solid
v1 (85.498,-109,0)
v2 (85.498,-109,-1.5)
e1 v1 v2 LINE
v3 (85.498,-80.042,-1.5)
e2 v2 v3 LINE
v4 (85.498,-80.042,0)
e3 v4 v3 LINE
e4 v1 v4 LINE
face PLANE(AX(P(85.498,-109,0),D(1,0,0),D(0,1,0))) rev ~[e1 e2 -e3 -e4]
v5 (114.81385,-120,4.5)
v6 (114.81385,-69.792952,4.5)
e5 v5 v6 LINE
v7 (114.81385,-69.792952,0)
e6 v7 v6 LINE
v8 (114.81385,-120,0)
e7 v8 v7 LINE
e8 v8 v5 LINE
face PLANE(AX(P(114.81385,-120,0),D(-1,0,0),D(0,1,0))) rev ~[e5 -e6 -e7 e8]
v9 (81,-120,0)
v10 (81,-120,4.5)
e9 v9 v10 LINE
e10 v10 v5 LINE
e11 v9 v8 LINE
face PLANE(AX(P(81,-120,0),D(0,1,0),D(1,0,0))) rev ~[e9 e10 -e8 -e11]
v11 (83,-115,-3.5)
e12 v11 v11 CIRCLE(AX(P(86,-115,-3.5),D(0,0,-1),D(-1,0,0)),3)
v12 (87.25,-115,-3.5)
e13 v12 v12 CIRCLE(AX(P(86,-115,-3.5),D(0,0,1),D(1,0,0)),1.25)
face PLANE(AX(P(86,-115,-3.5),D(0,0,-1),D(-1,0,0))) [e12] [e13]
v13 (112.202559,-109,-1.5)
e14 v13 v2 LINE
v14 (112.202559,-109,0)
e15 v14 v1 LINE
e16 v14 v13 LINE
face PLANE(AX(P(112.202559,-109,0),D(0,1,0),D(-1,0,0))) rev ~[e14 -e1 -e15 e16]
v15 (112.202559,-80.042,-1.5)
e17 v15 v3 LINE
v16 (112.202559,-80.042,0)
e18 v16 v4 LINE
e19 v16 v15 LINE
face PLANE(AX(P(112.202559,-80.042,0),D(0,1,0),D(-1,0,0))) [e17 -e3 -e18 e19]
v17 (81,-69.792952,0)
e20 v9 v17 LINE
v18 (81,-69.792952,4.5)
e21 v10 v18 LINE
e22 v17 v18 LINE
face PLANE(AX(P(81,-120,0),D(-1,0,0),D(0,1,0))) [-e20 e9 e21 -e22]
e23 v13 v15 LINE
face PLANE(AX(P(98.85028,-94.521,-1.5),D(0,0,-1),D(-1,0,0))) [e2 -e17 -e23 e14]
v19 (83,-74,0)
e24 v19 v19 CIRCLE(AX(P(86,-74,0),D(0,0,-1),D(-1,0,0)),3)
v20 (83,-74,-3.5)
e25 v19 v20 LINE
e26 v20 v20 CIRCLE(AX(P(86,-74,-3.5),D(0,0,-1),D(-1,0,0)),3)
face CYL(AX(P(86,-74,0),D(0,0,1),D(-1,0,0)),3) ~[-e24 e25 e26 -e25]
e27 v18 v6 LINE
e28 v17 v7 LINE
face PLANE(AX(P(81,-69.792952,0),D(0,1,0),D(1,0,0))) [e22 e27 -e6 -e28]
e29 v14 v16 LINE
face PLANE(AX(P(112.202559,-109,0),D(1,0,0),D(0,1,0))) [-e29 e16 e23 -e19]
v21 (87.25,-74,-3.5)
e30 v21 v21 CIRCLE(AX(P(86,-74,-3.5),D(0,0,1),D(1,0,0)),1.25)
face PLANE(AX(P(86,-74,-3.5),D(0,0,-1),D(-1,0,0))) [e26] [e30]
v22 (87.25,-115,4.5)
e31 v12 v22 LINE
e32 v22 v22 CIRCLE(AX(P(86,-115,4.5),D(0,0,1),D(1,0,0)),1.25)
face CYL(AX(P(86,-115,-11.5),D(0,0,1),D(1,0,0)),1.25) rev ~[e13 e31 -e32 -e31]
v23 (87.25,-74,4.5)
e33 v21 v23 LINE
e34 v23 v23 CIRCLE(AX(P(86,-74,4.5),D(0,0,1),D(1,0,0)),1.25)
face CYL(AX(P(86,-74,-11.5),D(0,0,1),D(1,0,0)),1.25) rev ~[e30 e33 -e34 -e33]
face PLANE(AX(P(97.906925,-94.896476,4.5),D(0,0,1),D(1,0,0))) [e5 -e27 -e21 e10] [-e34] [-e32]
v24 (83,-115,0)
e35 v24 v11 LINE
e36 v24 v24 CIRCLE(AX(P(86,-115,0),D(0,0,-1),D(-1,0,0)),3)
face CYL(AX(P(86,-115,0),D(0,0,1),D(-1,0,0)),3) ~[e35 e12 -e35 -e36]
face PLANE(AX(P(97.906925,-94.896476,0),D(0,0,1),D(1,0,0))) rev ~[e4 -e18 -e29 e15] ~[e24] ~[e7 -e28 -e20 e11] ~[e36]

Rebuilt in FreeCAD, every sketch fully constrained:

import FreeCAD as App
import Part
import Sketcher
from FreeCAD import Vector


def add_polygon(sketch, points):
    """Adds a closed chain of lines whose ends are joined by coincident constraints."""
    first, n = sketch.GeometryCount, len(points)
    for a, b in zip(points, points[1:] + points[:1]):
        sketch.addGeometry(Part.LineSegment(App.Vector(*a, 0), App.Vector(*b, 0)), False)
    for i in range(n):
        sketch.addConstraint(Sketcher.Constraint("Coincident", first + i, 2, first + (i + 1) % n, 1))

doc = App.newDocument("Part")
body = doc.addObject("PartDesign::Body", "Body")

# Sketch on XY plane
sketch1 = body.newObject("Sketcher::SketchObject", "Sketch")
sketch1.AttachmentSupport = (doc.getObject("XY_Plane"), [""])
sketch1.MapMode = "FlatFace"
add_polygon(sketch1, [(81, -70), (81, -120), (115, -120), (115, -70)])  # lines 0-3
sketch1.addConstraint([
    Sketcher.Constraint("Vertical", 0),
    Sketcher.Constraint("Horizontal", 1),
    Sketcher.Constraint("Vertical", 2),
    Sketcher.Constraint("Horizontal", 3),
    Sketcher.Constraint("DistanceX", -1, 1, 0, 2, 81.0),
    Sketcher.Constraint("DistanceY", 0, 2, -1, 1, 120.0),
    Sketcher.Constraint("DistanceX", 1, 1, 1, 2, 33.81385),
    Sketcher.Constraint("DistanceY", 0, 2, 0, 1, 50.207048),
])
pad1 = body.newObject("PartDesign::Pad", "Pad")
pad1.Profile = sketch1
pad1.Length = 4.5

# Sketch on XY plane
sketch2 = body.newObject("Sketcher::SketchObject", "Sketch001")
sketch2.AttachmentSupport = (doc.getObject("XY_Plane"), [""])
sketch2.MapMode = "FlatFace"
add_polygon(sketch2, [(112, -80), (112, -109), (85, -109), (85, -80)])  # lines 0-3
sketch2.addConstraint([
    Sketcher.Constraint("Vertical", 0),
    Sketcher.Constraint("Horizontal", 1),
    Sketcher.Constraint("Vertical", 2),
    Sketcher.Constraint("Horizontal", 3),
    Sketcher.Constraint("DistanceY", 0, 2, -1, 1, 109.0),
    Sketcher.Constraint("DistanceY", 0, 2, 0, 1, 28.958),
    Sketcher.Constraint("DistanceX", -1, 1, 1, 2, 85.498),
    Sketcher.Constraint("DistanceX", 1, 2, 1, 1, 26.704559),
])
pad2 = body.newObject("PartDesign::Pad", "Pad001")
pad2.Profile = sketch2
pad2.Length = 1.5
pad2.Reversed = True

# Sketch on XY plane
sketch3 = body.newObject("Sketcher::SketchObject", "Sketch002")
sketch3.AttachmentSupport = (doc.getObject("XY_Plane"), [""])
sketch3.MapMode = "FlatFace"
sketch3.addGeometry([
    Part.Circle(Vector(86, -74, 0), Vector(0, 0, 1), 3),
    Part.Circle(Vector(86, -115, 0), Vector(0, 0, 1), 3),
], False)
sketch3.addConstraint([
    Sketcher.Constraint("Equal", 0, 1),
    Sketcher.Constraint("Vertical", 0, 3, 1, 3),
    Sketcher.Constraint("Diameter", 0, 6.0),
    Sketcher.Constraint("DistanceX", -1, 1, 0, 3, 86.0),
    Sketcher.Constraint("DistanceY", 0, 3, -1, 1, 74.0),
    Sketcher.Constraint("DistanceY", 1, 3, -1, 1, 115.0),
])
pad3 = body.newObject("PartDesign::Pad", "Pad002")
pad3.Profile = sketch3
pad3.Length = 3.5
pad3.Reversed = True

# Sketch on XY plane
sketch4 = body.newObject("Sketcher::SketchObject", "Sketch003")
sketch4.AttachmentSupport = (doc.getObject("XY_Plane"), [""])
sketch4.MapMode = "FlatFace"
sketch4.AttachmentOffset = App.Placement(Vector(0, 0, -3.5), App.Rotation())
sketch4.addGeometry([
    Part.Circle(Vector(86, -74, 0), Vector(0, 0, 1), 1.2),
    Part.Circle(Vector(86, -115, 0), Vector(0, 0, 1), 1.2),
], False)
sketch4.addConstraint([
    Sketcher.Constraint("Equal", 0, 1),
    Sketcher.Constraint("Vertical", 0, 3, 1, 3),
    Sketcher.Constraint("Diameter", 0, 2.5),
    Sketcher.Constraint("DistanceX", -1, 1, 0, 3, 86.0),
    Sketcher.Constraint("DistanceY", 0, 3, -1, 1, 74.0),
    Sketcher.Constraint("DistanceY", 1, 3, -1, 1, 115.0),
])
doc.recompute()
hole = body.newObject("PartDesign::Hole", "Hole")
hole.Profile = sketch4
hole.ThreadType = "None"
hole.Diameter = 2.5
hole.DepthType = "Dimension"
hole.Depth = 8
hole.DrillPoint = "Flat"
hole.Reversed = True

doc.recompute()
